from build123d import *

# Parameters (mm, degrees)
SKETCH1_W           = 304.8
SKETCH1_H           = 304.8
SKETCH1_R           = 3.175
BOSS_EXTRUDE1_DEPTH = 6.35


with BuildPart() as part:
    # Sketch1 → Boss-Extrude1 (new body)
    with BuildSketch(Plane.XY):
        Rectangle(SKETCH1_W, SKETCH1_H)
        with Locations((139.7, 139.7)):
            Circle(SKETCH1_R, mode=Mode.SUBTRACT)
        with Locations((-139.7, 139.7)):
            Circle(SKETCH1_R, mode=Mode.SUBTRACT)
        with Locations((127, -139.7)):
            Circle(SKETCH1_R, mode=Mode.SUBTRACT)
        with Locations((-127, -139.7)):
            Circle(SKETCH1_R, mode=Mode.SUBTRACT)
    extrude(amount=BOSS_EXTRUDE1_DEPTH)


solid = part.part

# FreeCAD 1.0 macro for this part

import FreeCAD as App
import Part
import Sketcher

V = App.Vector
Q = App.Units.Quantity

doc = App.newDocument("Part")
params = doc.addObject("Spreadsheet::Sheet", "Params")
for row, (alias, value) in enumerate([
    ("sketch1_diameter", "0.25 in"),
    ("sketch1_width", "12 in"),
    ("pad1_length", "0.25 in"),
], start=1):
    params.set(f"A{row}", alias)
    params.set(f"B{row}", "=" + value)
    params.setAlias(f"B{row}", alias)

body = doc.addObject("PartDesign::Body", "Body")

sketch1 = body.newObject("Sketcher::SketchObject", "Sketch")
sketch1.AttachmentSupport = (doc.getObject("XY_Plane"), [""])
sketch1.MapMode = "FlatFace"
sketch1.addGeometry([
    Part.LineSegment(V(-152.4, 152.4, 0), V(-152.4, -152.4, 0)),
    Part.LineSegment(V(-152.4, -152.4, 0), V(152.4, -152.4, 0)),
    Part.LineSegment(V(152.4, -152.4, 0), V(152.4, 152.4, 0)),
    Part.LineSegment(V(152.4, 152.4, 0), V(-152.4, 152.4, 0)),
    Part.Circle(V(-127, -139.7, 0), V(0, 0, 1), 3.175),
    Part.Circle(V(127, -139.7, 0), V(0, 0, 1), 3.175),
    Part.Circle(V(-139.7, 139.7, 0), V(0, 0, 1), 3.175),
    Part.Circle(V(139.7, 139.7, 0), V(0, 0, 1), 3.175),
], False)
sketch1.addConstraint([
    Sketcher.Constraint("Coincident", 0, 2, 1, 1),
    Sketcher.Constraint("Coincident", 1, 2, 2, 1),
    Sketcher.Constraint("Coincident", 2, 2, 3, 1),
    Sketcher.Constraint("Coincident", 3, 2, 0, 1),
    Sketcher.Constraint("Vertical", 0),
    Sketcher.Constraint("Horizontal", 1),
    Sketcher.Constraint("Vertical", 2),
    Sketcher.Constraint("Horizontal", 3),
    Sketcher.Constraint("Equal", 4, 5),
    Sketcher.Constraint("Equal", 5, 6),
    Sketcher.Constraint("Equal", 6, 7),
    Sketcher.Constraint("Symmetric", 0, 2, 2, 2, -1, 1),
    Sketcher.Constraint("Symmetric", 4, 3, 5, 3, -2),
    Sketcher.Constraint("Symmetric", 6, 3, 7, 3, -2),
    Sketcher.Constraint("Equal", 3, 0),
    Sketcher.Constraint("Diameter", 4, Q("0.25 in")),
    Sketcher.Constraint("DistanceX", 1, 1, 1, 2, Q("12 in")),
    Sketcher.Constraint("DistanceX", 4, 3, -1, 1, Q("5 in")),
    Sketcher.Constraint("DistanceY", 4, 3, 6, 3, Q("11 in")),
    Sketcher.Constraint("DistanceX", 6, 3, 7, 3, Q("11 in")),
    Sketcher.Constraint("DistanceY", 4, 3, -1, 1, Q("5.5 in")),
])
sketch1.setExpression("Constraints[15]", "Params.sketch1_diameter")
sketch1.setExpression("Constraints[16]", "Params.sketch1_width")
pad1 = body.newObject("PartDesign::Pad", "Pad")
pad1.Profile = sketch1
pad1.setExpression("Length", "Params.pad1_length")

doc.recompute()
